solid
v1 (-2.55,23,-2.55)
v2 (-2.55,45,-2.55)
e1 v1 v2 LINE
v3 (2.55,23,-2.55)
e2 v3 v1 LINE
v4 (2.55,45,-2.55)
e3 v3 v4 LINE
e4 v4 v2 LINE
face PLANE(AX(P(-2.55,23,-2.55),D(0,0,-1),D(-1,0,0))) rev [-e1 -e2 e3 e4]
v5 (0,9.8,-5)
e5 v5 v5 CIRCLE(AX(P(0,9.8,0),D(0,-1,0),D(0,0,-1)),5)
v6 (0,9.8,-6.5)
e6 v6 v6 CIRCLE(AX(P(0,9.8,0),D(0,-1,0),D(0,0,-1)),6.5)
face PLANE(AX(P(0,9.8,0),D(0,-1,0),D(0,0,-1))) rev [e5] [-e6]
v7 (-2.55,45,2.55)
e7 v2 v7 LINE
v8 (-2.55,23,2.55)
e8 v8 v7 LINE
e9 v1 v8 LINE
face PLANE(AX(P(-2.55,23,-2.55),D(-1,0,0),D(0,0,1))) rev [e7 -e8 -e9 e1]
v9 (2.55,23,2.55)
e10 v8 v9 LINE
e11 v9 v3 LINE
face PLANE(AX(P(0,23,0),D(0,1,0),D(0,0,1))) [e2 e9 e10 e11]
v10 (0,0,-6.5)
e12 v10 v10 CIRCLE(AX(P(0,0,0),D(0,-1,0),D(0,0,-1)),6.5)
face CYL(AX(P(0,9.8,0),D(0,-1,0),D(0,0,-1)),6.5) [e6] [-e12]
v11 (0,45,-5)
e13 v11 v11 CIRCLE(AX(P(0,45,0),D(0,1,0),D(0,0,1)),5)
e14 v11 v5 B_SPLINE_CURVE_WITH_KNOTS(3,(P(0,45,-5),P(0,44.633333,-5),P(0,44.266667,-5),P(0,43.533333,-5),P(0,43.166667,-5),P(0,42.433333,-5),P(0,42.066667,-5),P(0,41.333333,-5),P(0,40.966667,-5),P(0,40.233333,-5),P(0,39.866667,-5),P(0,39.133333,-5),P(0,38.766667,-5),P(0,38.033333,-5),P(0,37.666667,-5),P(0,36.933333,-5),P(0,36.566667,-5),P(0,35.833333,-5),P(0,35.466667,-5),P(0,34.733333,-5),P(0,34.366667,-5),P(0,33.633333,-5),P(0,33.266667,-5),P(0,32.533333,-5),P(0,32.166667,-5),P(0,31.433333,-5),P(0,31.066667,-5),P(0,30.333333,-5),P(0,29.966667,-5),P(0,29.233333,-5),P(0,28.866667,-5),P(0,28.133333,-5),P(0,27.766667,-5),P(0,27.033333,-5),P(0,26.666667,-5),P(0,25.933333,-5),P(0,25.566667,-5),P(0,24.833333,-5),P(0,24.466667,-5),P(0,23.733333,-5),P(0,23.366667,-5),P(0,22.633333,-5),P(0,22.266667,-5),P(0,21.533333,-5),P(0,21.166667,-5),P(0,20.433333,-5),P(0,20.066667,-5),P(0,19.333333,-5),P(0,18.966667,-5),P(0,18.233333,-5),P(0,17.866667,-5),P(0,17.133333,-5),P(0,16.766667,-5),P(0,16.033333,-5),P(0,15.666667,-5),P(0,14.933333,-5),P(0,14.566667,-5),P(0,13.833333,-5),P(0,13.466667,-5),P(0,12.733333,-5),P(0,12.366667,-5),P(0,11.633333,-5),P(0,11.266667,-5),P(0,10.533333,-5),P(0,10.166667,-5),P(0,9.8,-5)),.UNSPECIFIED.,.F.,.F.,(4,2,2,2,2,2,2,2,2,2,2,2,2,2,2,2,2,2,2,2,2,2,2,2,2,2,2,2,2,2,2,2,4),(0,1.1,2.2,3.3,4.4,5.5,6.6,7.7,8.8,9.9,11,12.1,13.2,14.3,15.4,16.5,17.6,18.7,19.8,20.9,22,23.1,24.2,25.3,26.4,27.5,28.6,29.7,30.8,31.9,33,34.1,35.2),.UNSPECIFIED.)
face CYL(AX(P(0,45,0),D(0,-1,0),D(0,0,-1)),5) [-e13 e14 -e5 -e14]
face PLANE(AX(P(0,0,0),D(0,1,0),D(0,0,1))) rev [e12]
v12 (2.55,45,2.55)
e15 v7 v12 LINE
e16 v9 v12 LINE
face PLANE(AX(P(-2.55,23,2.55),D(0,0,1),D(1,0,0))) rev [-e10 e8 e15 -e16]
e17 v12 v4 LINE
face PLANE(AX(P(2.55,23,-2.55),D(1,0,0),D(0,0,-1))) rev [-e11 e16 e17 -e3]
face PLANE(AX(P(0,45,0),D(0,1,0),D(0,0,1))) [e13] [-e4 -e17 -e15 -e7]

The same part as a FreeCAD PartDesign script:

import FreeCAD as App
import Part
import Sketcher
from FreeCAD import Vector

doc = App.newDocument("Part")
body = doc.addObject("PartDesign::Body", "Body")

# Sketch on XZ plane
sketch1 = body.newObject("Sketcher::SketchObject", "Sketch")
sketch1.AttachmentSupport = (doc.getObject("XZ_Plane"), [""])
sketch1.MapMode = "FlatFace"
sketch1.addGeometry(Part.Circle(Vector(0, 0, 0), Vector(0, 0, 1), 5), False)
sketch1.addConstraint([
    Sketcher.Constraint("Coincident", 0, 3, -1, 1),
    Sketcher.Constraint("Diameter", 0, 10.0),
])
pad1 = body.newObject("PartDesign::Pad", "Pad")
pad1.Profile = sketch1
pad1.Length = 45
pad1.Reversed = True

# Sketch on XZ plane
sketch2 = body.newObject("Sketcher::SketchObject", "Sketch001")
sketch2.AttachmentSupport = (doc.getObject("XZ_Plane"), [""])
sketch2.MapMode = "FlatFace"
sketch2.AttachmentOffset = App.Placement(Vector(0, 0, -45), App.Rotation())
sketch2.addGeometry([
    Part.LineSegment(Vector(-2.55, -2.55, 0), Vector(-2.55, 2.55, 0)),
    Part.LineSegment(Vector(-2.55, 2.55, 0), Vector(2.55, 2.55, 0)),
    Part.LineSegment(Vector(2.55, 2.55, 0), Vector(2.55, -2.55, 0)),
    Part.LineSegment(Vector(2.55, -2.55, 0), Vector(-2.55, -2.55, 0)),
], False)
sketch2.addConstraint([
    Sketcher.Constraint("Coincident", 0, 2, 1, 1),
    Sketcher.Constraint("Coincident", 1, 2, 2, 1),
    Sketcher.Constraint("Coincident", 2, 2, 3, 1),
    Sketcher.Constraint("Coincident", 3, 2, 0, 1),
    Sketcher.Constraint("Vertical", 0),
    Sketcher.Constraint("Horizontal", 1),
    Sketcher.Constraint("Vertical", 2),
    Sketcher.Constraint("Horizontal", 3),
    Sketcher.Constraint("Symmetric", 0, 2, 2, 2, -1, 1),
    Sketcher.Constraint("Equal", 3, 0),
    Sketcher.Constraint("DistanceX", 1, 1, 1, 2, 5.1),
])
pocket1 = body.newObject("PartDesign::Pocket", "Pocket")
pocket1.Profile = sketch2
pocket1.Length = 22
pocket1.Reversed = True

# Sketch on XZ plane
sketch3 = body.newObject("Sketcher::SketchObject", "Sketch002")
sketch3.AttachmentSupport = (doc.getObject("XZ_Plane"), [""])
sketch3.MapMode = "FlatFace"
sketch3.addGeometry(Part.Circle(Vector(0, 0, 0), Vector(0, 0, 1), 6.5), False)
sketch3.addConstraint([
    Sketcher.Constraint("Coincident", 0, 3, -1, 1),
    Sketcher.Constraint("Diameter", 0, 13.0),
])
pad2 = body.newObject("PartDesign::Pad", "Pad001")
pad2.Profile = sketch3
pad2.Length = 9.8
pad2.Reversed = True

doc.recompute()
